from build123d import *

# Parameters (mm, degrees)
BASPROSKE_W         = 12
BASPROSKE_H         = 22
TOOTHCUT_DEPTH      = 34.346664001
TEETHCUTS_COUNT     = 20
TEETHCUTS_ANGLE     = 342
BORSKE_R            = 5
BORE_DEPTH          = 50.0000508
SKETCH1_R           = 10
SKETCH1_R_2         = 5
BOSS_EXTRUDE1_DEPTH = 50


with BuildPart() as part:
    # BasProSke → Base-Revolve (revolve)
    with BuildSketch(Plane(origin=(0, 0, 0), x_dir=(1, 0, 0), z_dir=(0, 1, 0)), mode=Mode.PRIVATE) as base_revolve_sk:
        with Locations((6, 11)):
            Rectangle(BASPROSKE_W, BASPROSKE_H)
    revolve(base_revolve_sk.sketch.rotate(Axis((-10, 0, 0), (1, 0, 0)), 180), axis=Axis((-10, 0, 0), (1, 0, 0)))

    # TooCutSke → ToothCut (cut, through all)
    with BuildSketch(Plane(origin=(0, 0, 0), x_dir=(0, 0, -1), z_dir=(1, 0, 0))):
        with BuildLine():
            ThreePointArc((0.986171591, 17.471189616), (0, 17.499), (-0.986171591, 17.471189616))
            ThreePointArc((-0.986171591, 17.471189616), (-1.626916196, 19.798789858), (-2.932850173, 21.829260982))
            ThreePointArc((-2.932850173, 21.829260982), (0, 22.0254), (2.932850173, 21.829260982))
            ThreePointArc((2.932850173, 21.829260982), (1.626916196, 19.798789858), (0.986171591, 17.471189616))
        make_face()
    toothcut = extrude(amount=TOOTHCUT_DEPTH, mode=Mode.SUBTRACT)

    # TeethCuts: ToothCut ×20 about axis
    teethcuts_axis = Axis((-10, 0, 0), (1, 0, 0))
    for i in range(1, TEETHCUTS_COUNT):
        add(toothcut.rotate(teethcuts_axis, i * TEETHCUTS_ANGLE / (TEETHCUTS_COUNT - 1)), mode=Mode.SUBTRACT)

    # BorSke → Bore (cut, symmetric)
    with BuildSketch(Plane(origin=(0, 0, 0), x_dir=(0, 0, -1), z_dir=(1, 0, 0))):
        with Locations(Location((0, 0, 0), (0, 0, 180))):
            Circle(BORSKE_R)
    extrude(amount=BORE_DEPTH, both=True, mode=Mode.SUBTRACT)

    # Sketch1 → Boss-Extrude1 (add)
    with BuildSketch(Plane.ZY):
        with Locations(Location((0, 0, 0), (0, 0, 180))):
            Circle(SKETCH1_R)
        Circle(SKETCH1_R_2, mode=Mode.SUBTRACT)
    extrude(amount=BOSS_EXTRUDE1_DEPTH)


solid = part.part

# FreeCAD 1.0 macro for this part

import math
import FreeCAD as App
import Part
import Sketcher

V = App.Vector
Q = App.Units.Quantity

doc = App.newDocument("Part")
body = doc.addObject("PartDesign::Body", "Body")

# Sketch on XZ plane
sketch1 = body.newObject("Sketcher::SketchObject", "Sketch")
sketch1.AttachmentSupport = (doc.getObject("XZ_Plane"), [""])
sketch1.MapMode = "FlatFace"
sketch1.addGeometry(Part.LineSegment(V(0, -22, 0), V(0, 0, 0)), False)
sketch1.addGeometry(Part.LineSegment(V(0, 0, 0), V(12, 0, 0)), False)
sketch1.addGeometry(Part.LineSegment(V(12, 0, 0), V(12, -22, 0)), False)
sketch1.addGeometry(Part.LineSegment(V(12, -22, 0), V(0, -22, 0)), False)
sketch1.addConstraint(Sketcher.Constraint("Coincident", 0, 2, 1, 1))
sketch1.addConstraint(Sketcher.Constraint("Coincident", 1, 2, 2, 1))
sketch1.addConstraint(Sketcher.Constraint("Coincident", 2, 2, 3, 1))
sketch1.addConstraint(Sketcher.Constraint("Coincident", 3, 2, 0, 1))
sketch1.addConstraint(Sketcher.Constraint("Vertical", 0))
sketch1.addConstraint(Sketcher.Constraint("Horizontal", 1))
sketch1.addConstraint(Sketcher.Constraint("Vertical", 2))
sketch1.addConstraint(Sketcher.Constraint("Horizontal", 3))
sketch1.addConstraint(Sketcher.Constraint("Coincident", 0, 2, -1, 1))
sketch1.addConstraint(Sketcher.Constraint("DistanceX", 1, 1, 1, 2, Q("12 mm")))
sketch1.addConstraint(Sketcher.Constraint("DistanceY", 0, 1, 0, 2, Q("22 mm")))
revolution = body.newObject("PartDesign::Revolution", "Revolution")
revolution.Profile = sketch1
revolution.ReferenceAxis = (sketch1, ["H_Axis"])
revolution.Angle = 360

# Sketch on YZ plane
sketch2 = body.newObject("Sketcher::SketchObject", "Sketch001")
sketch2.AttachmentSupport = (doc.getObject("YZ_Plane"), [""])
sketch2.MapMode = "FlatFace"
sketch2.addGeometry(Part.ArcOfCircle(Part.Circle(V(0, 0, 0), V(0, 0, 1), 17.499), math.radians(-3.230666), math.radians(3.230666)), False)
sketch2.addGeometry(Part.ArcOfCircle(Part.Circle(V(16.536031, -8.931326, 0), V(0, 0, 1), 8), math.radians(48.573876), math.radians(83.287069)), False)
sketch2.addGeometry(Part.ArcOfCircle(Part.Circle(V(0, 0, 0), V(0, 0, 1), 22.0254), math.radians(-7.652098), math.radians(7.652098)), False)
sketch2.addGeometry(Part.ArcOfCircle(Part.Circle(V(16.536031, 8.931326, 0), V(0, 0, 1), 8), math.radians(-83.287069), math.radians(-48.573876)), False)
sketch2.addConstraint(Sketcher.Constraint("Coincident", 0, 1, 1, 2))
sketch2.addConstraint(Sketcher.Constraint("Coincident", 1, 1, 2, 1))
sketch2.addConstraint(Sketcher.Constraint("Coincident", 2, 2, 3, 2))
sketch2.addConstraint(Sketcher.Constraint("Coincident", 3, 1, 0, 2))
sketch2.addConstraint(Sketcher.Constraint("Coincident", 0, 3, -1, 1))
sketch2.addConstraint(Sketcher.Constraint("Coincident", 2, 3, -1, 1))
sketch2.addConstraint(Sketcher.Constraint("Equal", 1, 3))
sketch2.addConstraint(Sketcher.Constraint("Symmetric", 1, 3, 3, 3, -1))
sketch2.addConstraint(Sketcher.Constraint("Radius", 1, Q("8 mm")))
sketch2.addConstraint(Sketcher.Constraint("Radius", 0, Q("17.499 mm")))
sketch2.addConstraint(Sketcher.Constraint("Radius", 2, Q("22.0254 mm")))
sketch2.addConstraint(Sketcher.Constraint("DistanceY", 1, 1, 2, 2, Q("5.8657 mm")))
sketch2.addConstraint(Sketcher.Constraint("DistanceX", -1, 1, 1, 3, Q("16.536031 mm")))
pocket1 = body.newObject("PartDesign::Pocket", "Pocket")
pocket1.Profile = sketch2
pocket1.Type = "ThroughAll"
pocket1.Reversed = True
doc.recompute()

polarpattern = body.newObject("PartDesign::PolarPattern", "PolarPattern")
polarpattern.Originals = [pocket1]
polarpattern.Axis = (doc.getObject("X_Axis"), [""])
polarpattern.Angle = 360
polarpattern.Occurrences = 20
body.Tip = polarpattern

# Sketch on YZ plane
sketch3 = body.newObject("Sketcher::SketchObject", "Sketch002")
sketch3.AttachmentSupport = (doc.getObject("YZ_Plane"), [""])
sketch3.MapMode = "FlatFace"
sketch3.addGeometry(Part.Circle(V(0, 0, 0), V(0, 0, 1), 5), False)
sketch3.addConstraint(Sketcher.Constraint("Coincident", 0, 3, -1, 1))
sketch3.addConstraint(Sketcher.Constraint("Diameter", 0, Q("10 mm")))
pocket2 = body.newObject("PartDesign::Pocket", "Pocket001")
pocket2.Profile = sketch3
pocket2.Length = 100.000102
pocket2.Midplane = True

# Sketch on YZ plane
sketch4 = body.newObject("Sketcher::SketchObject", "Sketch003")
sketch4.AttachmentSupport = (doc.getObject("YZ_Plane"), [""])
sketch4.MapMode = "FlatFace"
sketch4.addGeometry(Part.Circle(V(0, 0, 0), V(0, 0, 1), 10), False)
sketch4.addGeometry(Part.Circle(V(0, 0, 0), V(0, 0, 1), 5), False)
sketch4.addConstraint(Sketcher.Constraint("Coincident", 0, 3, -1, 1))
sketch4.addConstraint(Sketcher.Constraint("Coincident", 1, 3, -1, 1))
sketch4.addConstraint(Sketcher.Constraint("Diameter", 0, Q("20 mm")))
sketch4.addConstraint(Sketcher.Constraint("Diameter", 1, Q("10 mm")))
pad1 = body.newObject("PartDesign::Pad", "Pad")
pad1.Profile = sketch4
pad1.Length = 50
pad1.Reversed = True

doc.recompute()
